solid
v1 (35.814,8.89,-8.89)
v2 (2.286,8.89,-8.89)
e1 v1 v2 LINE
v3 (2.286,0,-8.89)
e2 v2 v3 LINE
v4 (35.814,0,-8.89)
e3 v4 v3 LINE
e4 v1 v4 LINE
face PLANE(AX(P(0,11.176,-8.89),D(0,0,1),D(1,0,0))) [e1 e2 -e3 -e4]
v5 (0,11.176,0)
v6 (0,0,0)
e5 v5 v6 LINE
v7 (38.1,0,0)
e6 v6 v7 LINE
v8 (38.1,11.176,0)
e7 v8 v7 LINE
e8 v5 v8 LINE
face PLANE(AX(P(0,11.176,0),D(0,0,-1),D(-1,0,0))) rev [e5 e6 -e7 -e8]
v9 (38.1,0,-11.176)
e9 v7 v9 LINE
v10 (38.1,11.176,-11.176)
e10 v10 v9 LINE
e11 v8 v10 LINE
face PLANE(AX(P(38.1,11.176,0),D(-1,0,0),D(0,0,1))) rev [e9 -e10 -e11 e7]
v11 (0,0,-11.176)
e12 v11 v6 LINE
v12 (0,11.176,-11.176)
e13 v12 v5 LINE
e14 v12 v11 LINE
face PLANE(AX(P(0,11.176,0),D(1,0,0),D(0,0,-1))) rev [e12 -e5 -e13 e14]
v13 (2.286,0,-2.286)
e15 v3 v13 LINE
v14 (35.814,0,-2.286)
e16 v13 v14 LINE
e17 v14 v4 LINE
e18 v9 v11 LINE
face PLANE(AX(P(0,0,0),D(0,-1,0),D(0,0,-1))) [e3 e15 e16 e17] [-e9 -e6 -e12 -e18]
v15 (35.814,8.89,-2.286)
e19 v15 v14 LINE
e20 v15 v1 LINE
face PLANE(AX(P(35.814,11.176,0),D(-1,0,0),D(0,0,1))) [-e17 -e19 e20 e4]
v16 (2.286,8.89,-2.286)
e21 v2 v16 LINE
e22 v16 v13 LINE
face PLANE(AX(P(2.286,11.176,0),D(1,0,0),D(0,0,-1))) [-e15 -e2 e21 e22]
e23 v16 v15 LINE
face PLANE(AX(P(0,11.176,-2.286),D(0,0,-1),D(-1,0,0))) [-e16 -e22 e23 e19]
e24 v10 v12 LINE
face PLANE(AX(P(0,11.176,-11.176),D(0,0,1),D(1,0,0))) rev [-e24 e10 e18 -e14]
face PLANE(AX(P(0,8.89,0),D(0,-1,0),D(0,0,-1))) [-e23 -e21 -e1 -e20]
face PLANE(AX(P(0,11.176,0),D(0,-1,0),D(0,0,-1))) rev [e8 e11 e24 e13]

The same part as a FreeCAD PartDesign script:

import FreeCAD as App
import Part
import Sketcher
from FreeCAD import Vector
Q = App.Units.Quantity


def faces_at(feature, points):
    """Names of the faces that lie closest to the given points."""
    faces = feature.Shape.Faces
    near = lambda p: min(range(len(faces)), key=lambda i: faces[i].distToShape(Part.Vertex(*p))[0])
    return sorted({f"Face{near(p) + 1}" for p in points})

doc = App.newDocument("Part")
body = doc.addObject("PartDesign::Body", "Body")

sketch1 = body.newObject("Sketcher::SketchObject", "Sketch")
sketch1.AttachmentSupport = (doc.getObject("XZ_Plane"), [""])
sketch1.MapMode = "FlatFace"
sketch1.addGeometry([
    Part.LineSegment(Vector(0, -11, 0), Vector(0, 0, 0)),
    Part.LineSegment(Vector(0, 0, 0), Vector(38, 0, 0)),
    Part.LineSegment(Vector(38, 0, 0), Vector(38, -11, 0)),
    Part.LineSegment(Vector(38, -11, 0), Vector(0, -11, 0)),
], False)
sketch1.addConstraint([
    Sketcher.Constraint("Coincident", 0, 2, 1, 1),
    Sketcher.Constraint("Coincident", 1, 2, 2, 1),
    Sketcher.Constraint("Coincident", 2, 2, 3, 1),
    Sketcher.Constraint("Coincident", 3, 2, 0, 1),
    Sketcher.Constraint("Vertical", 0),
    Sketcher.Constraint("Horizontal", 1),
    Sketcher.Constraint("Vertical", 2),
    Sketcher.Constraint("Horizontal", 3),
    Sketcher.Constraint("Coincident", 0, 2, -1, 1),
    Sketcher.Constraint("DistanceX", 1, 1, 1, 2, Q("1.5 in")),
    Sketcher.Constraint("DistanceY", 0, 1, 0, 2, Q("0.44 in")),
])
pad1 = body.newObject("PartDesign::Pad", "Pad")
pad1.Profile = sketch1
pad1.Length = Q("0.44 in")
pad1.Reversed = True
doc.recompute()

thickness = body.newObject("PartDesign::Thickness", "Thickness")
thickness.Base = (pad1, faces_at(pad1, [(19.05, 0, -5.588)]))
thickness.Value = Q("0.09 in")
thickness.Reversed = True
thickness.Join = "Intersection"

doc.recompute()
